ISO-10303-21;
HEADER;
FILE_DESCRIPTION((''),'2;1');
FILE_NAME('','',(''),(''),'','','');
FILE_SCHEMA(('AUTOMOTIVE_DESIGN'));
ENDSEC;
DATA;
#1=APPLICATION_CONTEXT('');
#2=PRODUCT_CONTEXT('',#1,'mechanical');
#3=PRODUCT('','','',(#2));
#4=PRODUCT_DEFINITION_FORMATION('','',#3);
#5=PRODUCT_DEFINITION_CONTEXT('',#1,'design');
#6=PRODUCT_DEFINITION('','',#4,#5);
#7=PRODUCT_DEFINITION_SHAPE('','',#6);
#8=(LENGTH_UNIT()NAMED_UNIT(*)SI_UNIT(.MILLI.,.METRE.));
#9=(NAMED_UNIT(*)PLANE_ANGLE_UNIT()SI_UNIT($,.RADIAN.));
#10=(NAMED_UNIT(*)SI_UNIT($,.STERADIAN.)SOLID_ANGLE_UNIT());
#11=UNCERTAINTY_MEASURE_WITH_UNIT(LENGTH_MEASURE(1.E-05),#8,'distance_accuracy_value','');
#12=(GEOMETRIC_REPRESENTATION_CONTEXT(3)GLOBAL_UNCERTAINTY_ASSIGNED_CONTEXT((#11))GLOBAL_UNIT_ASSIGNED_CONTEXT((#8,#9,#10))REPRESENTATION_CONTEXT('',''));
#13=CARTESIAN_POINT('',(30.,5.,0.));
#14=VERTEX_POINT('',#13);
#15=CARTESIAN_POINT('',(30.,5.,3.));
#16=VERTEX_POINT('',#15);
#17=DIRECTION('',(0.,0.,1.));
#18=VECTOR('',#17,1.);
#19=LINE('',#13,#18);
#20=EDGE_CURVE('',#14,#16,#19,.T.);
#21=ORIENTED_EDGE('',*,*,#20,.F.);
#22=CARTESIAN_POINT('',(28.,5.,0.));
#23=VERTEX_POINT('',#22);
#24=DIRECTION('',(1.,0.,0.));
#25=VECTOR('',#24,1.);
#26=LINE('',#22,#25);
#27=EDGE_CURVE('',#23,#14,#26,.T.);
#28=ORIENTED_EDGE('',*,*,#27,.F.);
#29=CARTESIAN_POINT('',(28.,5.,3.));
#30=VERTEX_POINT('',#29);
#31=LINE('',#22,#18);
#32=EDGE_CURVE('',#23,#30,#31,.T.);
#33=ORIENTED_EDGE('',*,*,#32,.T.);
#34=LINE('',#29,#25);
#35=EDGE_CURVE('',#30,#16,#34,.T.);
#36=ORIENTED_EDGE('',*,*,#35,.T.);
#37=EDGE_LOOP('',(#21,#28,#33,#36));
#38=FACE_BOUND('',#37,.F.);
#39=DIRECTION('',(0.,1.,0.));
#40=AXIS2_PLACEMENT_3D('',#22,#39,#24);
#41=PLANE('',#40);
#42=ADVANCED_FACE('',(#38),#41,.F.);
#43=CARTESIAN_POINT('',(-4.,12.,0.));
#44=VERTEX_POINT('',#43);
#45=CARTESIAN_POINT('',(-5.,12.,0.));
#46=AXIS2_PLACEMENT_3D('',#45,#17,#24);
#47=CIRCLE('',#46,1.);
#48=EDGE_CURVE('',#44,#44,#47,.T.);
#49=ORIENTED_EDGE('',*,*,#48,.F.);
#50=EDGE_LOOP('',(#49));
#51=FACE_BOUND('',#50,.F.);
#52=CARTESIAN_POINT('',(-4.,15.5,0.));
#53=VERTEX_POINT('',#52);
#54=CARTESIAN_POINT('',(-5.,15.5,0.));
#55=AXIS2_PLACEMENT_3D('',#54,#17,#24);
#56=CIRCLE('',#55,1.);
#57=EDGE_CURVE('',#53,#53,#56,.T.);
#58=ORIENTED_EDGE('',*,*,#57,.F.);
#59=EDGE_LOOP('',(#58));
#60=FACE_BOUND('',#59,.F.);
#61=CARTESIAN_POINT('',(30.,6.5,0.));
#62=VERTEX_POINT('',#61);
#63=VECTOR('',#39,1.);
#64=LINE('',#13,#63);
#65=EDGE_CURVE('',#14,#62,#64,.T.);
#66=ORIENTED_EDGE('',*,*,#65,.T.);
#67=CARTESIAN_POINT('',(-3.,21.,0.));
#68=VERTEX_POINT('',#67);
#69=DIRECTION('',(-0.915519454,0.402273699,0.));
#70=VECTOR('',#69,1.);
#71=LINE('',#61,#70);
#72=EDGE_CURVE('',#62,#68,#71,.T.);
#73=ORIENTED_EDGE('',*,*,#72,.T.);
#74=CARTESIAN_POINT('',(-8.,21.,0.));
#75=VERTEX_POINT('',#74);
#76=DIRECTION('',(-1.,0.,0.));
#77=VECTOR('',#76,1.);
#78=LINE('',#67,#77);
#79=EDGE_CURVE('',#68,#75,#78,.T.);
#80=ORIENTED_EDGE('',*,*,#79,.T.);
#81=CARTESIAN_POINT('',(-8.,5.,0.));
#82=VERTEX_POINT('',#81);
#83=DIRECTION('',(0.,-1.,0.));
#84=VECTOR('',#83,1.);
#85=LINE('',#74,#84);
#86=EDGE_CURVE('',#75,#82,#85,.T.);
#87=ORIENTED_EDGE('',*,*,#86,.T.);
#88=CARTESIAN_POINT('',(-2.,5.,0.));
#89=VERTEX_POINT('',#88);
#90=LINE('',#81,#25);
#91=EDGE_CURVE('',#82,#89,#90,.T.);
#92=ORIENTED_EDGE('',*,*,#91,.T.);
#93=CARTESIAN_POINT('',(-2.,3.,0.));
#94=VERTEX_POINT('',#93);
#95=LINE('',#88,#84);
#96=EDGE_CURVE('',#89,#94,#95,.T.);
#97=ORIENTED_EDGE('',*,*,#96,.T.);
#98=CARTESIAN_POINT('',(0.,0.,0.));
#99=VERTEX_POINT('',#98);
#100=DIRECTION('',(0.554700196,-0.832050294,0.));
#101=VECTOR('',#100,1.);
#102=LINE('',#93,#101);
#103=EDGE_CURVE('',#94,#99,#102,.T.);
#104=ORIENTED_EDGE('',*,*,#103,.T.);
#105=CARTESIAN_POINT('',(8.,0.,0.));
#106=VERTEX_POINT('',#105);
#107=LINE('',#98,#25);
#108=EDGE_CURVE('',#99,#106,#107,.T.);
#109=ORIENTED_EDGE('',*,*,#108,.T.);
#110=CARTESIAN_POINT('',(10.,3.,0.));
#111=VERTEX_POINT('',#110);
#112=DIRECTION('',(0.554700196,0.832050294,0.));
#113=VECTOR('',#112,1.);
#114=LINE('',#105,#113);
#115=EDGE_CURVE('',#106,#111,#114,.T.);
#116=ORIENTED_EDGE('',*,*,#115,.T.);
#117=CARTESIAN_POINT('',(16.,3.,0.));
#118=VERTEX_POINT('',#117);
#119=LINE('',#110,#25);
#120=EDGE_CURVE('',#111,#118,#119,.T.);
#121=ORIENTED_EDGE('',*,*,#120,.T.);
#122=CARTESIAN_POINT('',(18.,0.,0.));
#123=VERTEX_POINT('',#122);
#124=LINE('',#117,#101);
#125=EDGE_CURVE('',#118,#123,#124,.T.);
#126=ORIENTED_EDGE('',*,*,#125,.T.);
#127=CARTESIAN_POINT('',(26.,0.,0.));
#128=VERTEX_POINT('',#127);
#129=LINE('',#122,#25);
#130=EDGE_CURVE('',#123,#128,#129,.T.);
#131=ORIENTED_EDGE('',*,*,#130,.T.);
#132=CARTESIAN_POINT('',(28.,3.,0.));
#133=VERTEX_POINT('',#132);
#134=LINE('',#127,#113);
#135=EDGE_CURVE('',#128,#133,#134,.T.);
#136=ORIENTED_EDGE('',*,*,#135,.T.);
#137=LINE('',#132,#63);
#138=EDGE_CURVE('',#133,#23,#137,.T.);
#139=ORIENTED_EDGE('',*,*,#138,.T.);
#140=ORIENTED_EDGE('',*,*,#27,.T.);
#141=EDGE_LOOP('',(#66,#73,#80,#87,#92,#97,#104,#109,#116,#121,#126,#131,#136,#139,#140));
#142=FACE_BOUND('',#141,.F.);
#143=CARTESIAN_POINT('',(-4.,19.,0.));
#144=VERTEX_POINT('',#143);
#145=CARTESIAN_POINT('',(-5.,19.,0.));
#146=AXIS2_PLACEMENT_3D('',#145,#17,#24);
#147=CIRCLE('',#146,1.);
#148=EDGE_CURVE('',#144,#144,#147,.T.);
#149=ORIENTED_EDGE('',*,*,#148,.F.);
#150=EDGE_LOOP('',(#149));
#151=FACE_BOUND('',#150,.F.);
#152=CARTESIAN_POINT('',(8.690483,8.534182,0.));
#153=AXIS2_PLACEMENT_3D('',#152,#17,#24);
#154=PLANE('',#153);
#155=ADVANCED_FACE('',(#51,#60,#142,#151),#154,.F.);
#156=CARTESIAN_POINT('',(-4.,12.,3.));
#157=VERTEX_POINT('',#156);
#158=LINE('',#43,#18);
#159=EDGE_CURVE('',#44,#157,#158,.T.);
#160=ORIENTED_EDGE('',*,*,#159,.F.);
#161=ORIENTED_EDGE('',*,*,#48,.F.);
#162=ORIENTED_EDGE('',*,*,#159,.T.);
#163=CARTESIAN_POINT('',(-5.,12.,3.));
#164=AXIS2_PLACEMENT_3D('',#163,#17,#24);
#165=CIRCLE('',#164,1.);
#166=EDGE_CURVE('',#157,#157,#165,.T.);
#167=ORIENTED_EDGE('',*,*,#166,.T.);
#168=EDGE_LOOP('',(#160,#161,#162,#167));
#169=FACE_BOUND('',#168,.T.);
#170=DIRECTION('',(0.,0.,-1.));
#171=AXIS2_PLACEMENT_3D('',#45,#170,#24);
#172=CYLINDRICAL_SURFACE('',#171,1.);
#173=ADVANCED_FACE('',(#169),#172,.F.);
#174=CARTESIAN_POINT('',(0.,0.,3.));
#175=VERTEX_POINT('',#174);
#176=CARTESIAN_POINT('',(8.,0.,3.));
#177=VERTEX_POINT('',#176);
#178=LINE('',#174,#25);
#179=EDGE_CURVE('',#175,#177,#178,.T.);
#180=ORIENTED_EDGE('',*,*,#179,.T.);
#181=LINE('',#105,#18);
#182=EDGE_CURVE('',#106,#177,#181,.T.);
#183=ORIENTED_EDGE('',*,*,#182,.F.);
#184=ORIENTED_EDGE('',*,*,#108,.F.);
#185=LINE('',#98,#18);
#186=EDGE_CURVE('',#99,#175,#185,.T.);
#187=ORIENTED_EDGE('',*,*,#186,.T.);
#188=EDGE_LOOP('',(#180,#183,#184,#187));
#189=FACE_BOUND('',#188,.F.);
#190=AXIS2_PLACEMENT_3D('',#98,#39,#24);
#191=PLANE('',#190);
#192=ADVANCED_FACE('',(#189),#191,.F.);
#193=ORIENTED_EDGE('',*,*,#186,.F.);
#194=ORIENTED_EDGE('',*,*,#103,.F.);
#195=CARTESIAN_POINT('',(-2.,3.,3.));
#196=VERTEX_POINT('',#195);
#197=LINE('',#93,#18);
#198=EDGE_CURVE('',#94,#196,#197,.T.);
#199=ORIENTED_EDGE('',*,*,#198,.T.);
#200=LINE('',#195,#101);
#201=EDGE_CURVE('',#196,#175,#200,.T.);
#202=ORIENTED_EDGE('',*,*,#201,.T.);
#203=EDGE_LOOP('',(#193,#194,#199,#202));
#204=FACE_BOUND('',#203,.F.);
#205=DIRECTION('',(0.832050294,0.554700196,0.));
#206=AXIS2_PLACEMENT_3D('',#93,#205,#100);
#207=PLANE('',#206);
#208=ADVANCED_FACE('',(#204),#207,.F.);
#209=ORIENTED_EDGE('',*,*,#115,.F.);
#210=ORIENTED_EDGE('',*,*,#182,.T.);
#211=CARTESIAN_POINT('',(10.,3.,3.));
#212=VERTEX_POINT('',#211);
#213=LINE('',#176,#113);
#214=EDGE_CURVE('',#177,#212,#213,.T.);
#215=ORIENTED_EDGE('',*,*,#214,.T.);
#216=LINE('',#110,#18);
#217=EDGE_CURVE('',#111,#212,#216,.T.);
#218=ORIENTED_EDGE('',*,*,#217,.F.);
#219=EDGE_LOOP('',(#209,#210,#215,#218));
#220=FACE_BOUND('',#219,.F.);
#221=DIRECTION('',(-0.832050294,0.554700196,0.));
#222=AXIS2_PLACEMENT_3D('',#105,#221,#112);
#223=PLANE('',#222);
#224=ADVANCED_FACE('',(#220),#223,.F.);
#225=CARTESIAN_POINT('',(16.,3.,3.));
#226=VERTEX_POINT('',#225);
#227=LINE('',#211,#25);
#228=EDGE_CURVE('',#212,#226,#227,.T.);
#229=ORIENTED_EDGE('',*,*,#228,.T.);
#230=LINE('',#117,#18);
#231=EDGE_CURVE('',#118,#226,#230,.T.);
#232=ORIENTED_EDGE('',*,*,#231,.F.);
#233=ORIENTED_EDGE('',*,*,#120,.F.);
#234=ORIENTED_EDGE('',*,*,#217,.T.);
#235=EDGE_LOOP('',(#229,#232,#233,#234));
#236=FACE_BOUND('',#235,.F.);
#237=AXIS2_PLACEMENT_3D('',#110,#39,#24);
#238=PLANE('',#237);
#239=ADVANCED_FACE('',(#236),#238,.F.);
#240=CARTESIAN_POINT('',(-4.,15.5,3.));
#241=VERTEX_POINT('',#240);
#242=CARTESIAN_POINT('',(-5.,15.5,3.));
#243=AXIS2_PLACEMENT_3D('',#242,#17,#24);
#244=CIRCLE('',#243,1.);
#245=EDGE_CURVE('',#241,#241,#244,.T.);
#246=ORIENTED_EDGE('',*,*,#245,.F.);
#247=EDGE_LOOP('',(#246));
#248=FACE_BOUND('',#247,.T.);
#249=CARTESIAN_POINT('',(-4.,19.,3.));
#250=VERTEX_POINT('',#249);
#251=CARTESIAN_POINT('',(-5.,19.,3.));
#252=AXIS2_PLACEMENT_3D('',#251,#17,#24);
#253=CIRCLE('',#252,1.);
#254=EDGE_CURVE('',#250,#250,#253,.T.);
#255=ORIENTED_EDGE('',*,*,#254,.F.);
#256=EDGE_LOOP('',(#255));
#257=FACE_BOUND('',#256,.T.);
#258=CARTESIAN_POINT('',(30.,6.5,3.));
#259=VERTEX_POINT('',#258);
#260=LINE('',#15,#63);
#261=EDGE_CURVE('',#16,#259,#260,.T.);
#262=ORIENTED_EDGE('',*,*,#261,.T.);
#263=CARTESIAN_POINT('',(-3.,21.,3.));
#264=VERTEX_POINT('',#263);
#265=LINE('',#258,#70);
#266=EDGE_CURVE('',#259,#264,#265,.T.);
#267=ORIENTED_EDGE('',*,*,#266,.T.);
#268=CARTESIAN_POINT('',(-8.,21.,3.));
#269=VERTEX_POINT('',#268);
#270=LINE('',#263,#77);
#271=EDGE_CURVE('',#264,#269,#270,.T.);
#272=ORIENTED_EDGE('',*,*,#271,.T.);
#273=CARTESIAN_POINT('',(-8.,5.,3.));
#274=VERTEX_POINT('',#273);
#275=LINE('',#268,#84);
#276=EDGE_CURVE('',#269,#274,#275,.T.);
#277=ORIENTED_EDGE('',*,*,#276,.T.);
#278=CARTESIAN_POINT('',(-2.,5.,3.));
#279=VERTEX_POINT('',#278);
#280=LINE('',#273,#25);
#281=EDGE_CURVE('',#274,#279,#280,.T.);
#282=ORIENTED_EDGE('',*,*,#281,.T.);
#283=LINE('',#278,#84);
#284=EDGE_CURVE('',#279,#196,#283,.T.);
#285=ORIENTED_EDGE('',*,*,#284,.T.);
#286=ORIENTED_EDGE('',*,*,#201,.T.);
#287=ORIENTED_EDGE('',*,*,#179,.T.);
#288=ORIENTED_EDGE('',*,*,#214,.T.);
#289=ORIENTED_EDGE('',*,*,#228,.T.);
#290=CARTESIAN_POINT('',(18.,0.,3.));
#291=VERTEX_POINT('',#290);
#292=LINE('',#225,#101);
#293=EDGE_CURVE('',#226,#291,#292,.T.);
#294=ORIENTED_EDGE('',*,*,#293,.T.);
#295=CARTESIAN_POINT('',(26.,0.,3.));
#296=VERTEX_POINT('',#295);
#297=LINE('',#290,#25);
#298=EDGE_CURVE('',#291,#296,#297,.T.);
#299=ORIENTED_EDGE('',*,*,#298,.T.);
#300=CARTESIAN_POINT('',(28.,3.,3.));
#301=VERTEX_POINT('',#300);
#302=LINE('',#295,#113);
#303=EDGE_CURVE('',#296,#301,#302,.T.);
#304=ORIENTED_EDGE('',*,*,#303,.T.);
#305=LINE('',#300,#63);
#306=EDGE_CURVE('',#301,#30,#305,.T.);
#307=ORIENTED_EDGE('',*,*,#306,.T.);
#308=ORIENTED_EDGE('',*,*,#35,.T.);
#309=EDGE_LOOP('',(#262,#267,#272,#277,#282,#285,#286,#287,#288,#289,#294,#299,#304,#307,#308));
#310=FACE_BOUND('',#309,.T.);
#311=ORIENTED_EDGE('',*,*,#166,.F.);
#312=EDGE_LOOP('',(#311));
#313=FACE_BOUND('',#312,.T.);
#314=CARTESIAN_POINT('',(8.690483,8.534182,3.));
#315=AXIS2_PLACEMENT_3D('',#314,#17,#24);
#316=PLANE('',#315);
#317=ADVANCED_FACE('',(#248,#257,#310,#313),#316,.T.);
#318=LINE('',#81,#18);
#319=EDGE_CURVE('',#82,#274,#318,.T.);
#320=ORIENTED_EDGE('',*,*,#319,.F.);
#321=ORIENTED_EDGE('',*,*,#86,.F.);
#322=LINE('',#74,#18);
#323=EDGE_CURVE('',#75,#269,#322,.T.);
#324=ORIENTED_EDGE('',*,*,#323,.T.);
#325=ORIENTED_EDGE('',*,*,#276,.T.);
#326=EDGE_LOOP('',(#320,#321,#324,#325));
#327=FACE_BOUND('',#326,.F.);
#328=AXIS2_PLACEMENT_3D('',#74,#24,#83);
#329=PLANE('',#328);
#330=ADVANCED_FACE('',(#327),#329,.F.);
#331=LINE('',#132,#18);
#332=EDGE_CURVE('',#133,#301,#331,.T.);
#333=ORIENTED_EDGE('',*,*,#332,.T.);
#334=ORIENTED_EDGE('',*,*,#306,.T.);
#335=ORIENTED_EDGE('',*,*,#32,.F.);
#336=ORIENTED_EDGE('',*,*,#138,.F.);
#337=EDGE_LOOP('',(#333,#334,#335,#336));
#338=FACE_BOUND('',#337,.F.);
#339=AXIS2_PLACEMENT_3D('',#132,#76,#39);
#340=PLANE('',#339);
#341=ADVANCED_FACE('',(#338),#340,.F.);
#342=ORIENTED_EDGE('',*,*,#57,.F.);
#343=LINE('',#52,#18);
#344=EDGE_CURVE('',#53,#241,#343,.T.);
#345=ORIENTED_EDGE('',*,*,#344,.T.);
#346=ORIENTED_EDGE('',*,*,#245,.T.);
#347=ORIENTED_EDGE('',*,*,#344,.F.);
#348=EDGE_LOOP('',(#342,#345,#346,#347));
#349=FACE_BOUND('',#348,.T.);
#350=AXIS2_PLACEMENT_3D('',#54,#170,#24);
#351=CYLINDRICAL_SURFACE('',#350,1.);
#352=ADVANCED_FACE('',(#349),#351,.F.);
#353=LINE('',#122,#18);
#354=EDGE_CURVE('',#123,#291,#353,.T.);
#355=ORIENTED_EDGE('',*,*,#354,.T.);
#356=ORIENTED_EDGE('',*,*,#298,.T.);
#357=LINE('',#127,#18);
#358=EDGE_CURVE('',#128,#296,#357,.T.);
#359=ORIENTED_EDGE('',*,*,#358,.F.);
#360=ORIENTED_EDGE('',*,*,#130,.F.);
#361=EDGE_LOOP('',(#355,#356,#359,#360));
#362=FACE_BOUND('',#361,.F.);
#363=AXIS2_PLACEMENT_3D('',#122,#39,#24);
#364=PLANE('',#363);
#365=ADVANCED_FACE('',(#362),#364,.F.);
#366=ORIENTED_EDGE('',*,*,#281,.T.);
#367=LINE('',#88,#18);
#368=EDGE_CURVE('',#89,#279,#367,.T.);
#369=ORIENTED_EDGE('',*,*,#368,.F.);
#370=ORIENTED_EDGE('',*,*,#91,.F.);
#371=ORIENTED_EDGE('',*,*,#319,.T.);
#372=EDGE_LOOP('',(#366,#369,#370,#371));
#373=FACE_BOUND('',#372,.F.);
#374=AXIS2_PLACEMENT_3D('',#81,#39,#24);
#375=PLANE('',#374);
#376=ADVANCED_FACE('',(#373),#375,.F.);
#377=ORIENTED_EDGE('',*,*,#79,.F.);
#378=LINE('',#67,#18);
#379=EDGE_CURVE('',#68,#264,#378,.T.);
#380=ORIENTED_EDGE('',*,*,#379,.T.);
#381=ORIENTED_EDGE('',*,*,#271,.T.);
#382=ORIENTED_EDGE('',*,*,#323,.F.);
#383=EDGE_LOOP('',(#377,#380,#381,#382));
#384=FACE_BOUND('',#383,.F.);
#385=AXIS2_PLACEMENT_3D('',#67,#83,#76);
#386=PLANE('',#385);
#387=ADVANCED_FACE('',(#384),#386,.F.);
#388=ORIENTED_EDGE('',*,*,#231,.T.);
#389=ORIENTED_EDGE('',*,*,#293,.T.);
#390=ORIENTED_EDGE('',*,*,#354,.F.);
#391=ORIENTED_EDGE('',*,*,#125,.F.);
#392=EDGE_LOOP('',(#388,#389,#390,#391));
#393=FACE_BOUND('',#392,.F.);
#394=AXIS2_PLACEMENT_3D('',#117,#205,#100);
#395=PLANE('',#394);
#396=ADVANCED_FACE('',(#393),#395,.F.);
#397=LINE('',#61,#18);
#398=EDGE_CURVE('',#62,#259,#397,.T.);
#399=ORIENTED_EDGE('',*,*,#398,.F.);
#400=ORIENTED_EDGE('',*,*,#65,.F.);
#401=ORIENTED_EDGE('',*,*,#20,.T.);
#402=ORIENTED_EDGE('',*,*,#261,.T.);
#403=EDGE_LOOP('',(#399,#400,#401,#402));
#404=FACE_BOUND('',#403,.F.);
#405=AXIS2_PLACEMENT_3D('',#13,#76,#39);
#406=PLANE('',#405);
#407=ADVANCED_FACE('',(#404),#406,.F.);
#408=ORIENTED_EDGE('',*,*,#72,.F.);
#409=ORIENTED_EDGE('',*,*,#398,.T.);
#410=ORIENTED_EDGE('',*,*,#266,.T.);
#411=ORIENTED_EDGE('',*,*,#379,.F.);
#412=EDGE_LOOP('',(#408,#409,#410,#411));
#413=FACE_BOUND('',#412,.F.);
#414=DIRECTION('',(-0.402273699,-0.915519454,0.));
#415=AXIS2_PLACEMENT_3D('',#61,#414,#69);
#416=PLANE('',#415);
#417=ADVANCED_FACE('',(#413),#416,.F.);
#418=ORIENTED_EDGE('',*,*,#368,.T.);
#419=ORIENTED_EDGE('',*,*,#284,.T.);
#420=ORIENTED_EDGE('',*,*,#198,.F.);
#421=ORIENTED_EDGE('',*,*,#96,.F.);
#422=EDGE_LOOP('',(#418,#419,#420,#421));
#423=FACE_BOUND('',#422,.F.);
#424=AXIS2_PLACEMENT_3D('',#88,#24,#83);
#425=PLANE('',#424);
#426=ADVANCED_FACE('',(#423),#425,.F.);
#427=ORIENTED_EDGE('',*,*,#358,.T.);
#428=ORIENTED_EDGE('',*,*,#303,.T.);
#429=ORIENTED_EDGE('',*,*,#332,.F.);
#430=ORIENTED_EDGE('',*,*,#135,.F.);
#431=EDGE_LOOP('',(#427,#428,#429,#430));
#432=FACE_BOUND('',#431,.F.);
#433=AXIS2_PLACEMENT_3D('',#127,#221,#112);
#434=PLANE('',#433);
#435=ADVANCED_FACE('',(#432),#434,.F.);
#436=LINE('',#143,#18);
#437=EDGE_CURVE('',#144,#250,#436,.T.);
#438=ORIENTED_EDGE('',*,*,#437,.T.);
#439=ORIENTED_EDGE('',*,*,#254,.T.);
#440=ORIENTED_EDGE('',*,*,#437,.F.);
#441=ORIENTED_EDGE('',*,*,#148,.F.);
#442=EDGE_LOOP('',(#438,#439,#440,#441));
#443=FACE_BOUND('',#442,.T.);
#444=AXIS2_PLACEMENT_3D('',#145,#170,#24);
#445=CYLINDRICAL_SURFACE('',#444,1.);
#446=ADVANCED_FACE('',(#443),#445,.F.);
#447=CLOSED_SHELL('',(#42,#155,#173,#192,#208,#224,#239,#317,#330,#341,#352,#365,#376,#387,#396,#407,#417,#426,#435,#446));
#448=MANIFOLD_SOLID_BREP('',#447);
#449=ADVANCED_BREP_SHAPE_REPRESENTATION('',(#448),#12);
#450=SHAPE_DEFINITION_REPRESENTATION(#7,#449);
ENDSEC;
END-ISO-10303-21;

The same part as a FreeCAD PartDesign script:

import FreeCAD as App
import Part
import Sketcher

doc = App.newDocument("Part")
params = doc.addObject("Spreadsheet::Sheet", "Params")
for row, (alias, value) in enumerate([
    ("sketch1_diameter", "2 mm"),
    ("sketch1_width", "8 mm"),
    ("sketch1_width2", "6 mm"),
    ("sketch1_width3", "2 mm"),
    ("sketch1_width4", "5 mm"),
    ("pad1_length", "3 mm"),
], start=1):
    params.set(f"A{row}", alias)
    params.set(f"B{row}", "=" + value)
    params.setAlias(f"B{row}", alias)

body = doc.addObject("PartDesign::Body", "Body")

# Sketch on XY plane
sketch1 = body.newObject("Sketcher::SketchObject", "Sketch")
sketch1.AttachmentSupport = (doc.getObject("XY_Plane"), [""])
sketch1.MapMode = "FlatFace"
sketch1.addGeometry([
    Part.LineSegment(App.Vector(0, 0, 0), App.Vector(8, 0, 0)),  # 0
    Part.LineSegment(App.Vector(8, 0, 0), App.Vector(10, 3, 0)),  # 1
    Part.LineSegment(App.Vector(10, 3, 0), App.Vector(16, 3, 0)),  # 2
    Part.LineSegment(App.Vector(16, 3, 0), App.Vector(18, 0, 0)),  # 3
    Part.LineSegment(App.Vector(18, 0, 0), App.Vector(26, 0, 0)),  # 4
    Part.LineSegment(App.Vector(26, 0, 0), App.Vector(28, 3, 0)),  # 5
    Part.LineSegment(App.Vector(28, 3, 0), App.Vector(28, 5, 0)),  # 6
    Part.LineSegment(App.Vector(28, 5, 0), App.Vector(30, 5, 0)),  # 7
    Part.LineSegment(App.Vector(30, 5, 0), App.Vector(30, 6.5, 0)),  # 8
    Part.LineSegment(App.Vector(30, 6.5, 0), App.Vector(-3, 21, 0)),  # 9
    Part.LineSegment(App.Vector(-3, 21, 0), App.Vector(-8, 21, 0)),  # 10
    Part.LineSegment(App.Vector(-8, 21, 0), App.Vector(-8, 5, 0)),  # 11
    Part.LineSegment(App.Vector(-8, 5, 0), App.Vector(-2, 5, 0)),  # 12
    Part.LineSegment(App.Vector(-2, 5, 0), App.Vector(-2, 3, 0)),  # 13
    Part.LineSegment(App.Vector(-2, 3, 0), App.Vector(0, 0, 0)),  # 14
    Part.Circle(App.Vector(-5, 12, 0), App.Vector(0, 0, 1), 1),  # 15
    Part.Circle(App.Vector(-5, 15.5, 0), App.Vector(0, 0, 1), 1),  # 16
    Part.Circle(App.Vector(-5, 19, 0), App.Vector(0, 0, 1), 1),  # 17
], False)
sketch1.addConstraint([
    Sketcher.Constraint("Coincident", 0, 2, 1, 1),
    Sketcher.Constraint("Coincident", 1, 2, 2, 1),
    Sketcher.Constraint("Coincident", 2, 2, 3, 1),
    Sketcher.Constraint("Coincident", 3, 2, 4, 1),
    Sketcher.Constraint("Coincident", 4, 2, 5, 1),
    Sketcher.Constraint("Coincident", 5, 2, 6, 1),
    Sketcher.Constraint("Coincident", 6, 2, 7, 1),
    Sketcher.Constraint("Coincident", 7, 2, 8, 1),
    Sketcher.Constraint("Coincident", 8, 2, 9, 1),
    Sketcher.Constraint("Coincident", 9, 2, 10, 1),
    Sketcher.Constraint("Coincident", 10, 2, 11, 1),
    Sketcher.Constraint("Coincident", 11, 2, 12, 1),
    Sketcher.Constraint("Coincident", 12, 2, 13, 1),
    Sketcher.Constraint("Coincident", 13, 2, 14, 1),
    Sketcher.Constraint("Coincident", 14, 2, 0, 1),
    Sketcher.Constraint("Horizontal", 0),
    Sketcher.Constraint("Horizontal", 2),
    Sketcher.Constraint("Horizontal", 4),
    Sketcher.Constraint("Vertical", 6),
    Sketcher.Constraint("Horizontal", 7),
    Sketcher.Constraint("Vertical", 8),
    Sketcher.Constraint("Horizontal", 10),
    Sketcher.Constraint("Vertical", 11),
    Sketcher.Constraint("Horizontal", 12),
    Sketcher.Constraint("Vertical", 13),
    Sketcher.Constraint("Coincident", 14, 2, -1, 1),
    Sketcher.Constraint("Equal", 15, 16),
    Sketcher.Constraint("Equal", 16, 17),
    Sketcher.Constraint("PointOnObject", 3, 2, -1),
    Sketcher.Constraint("Parallel", 1, 5),
    Sketcher.Constraint("Parallel", 3, 14),
    Sketcher.Constraint("Horizontal", 2, 2, 5, 2),
    Sketcher.Constraint("Horizontal", 7, 2, 11, 2),
    Sketcher.Constraint("Horizontal", 5, 2, 13, 2),
    Sketcher.Constraint("Vertical", 15, 3, 16, 3),
    Sketcher.Constraint("Vertical", 16, 3, 17, 3),
    Sketcher.Constraint("Equal", 0, 4),
    Sketcher.Constraint("Equal", 2, 12),
    Sketcher.Constraint("Equal", 7, 6),
    Sketcher.Constraint("Equal", 1, 3),
    Sketcher.Constraint("Diameter", 15, 2.0),
    Sketcher.Constraint("DistanceX", 0, 1, 0, 2, 8.0),
    Sketcher.Constraint("DistanceX", 2, 1, 2, 2, 6.0),
    Sketcher.Constraint("DistanceX", 7, 1, 7, 2, 2.0),
    Sketcher.Constraint("DistanceX", 10, 2, 10, 1, 5.0),
    Sketcher.Constraint("DistanceY", 11, 2, 11, 1, 16.0),
    Sketcher.Constraint("DistanceY", 8, 1, 8, 2, 1.5),
    Sketcher.Constraint("DistanceX", 15, 3, -1, 1, 5.0),
    Sketcher.Constraint("DistanceY", -1, 1, 15, 3, 12.0),
    Sketcher.Constraint("DistanceY", -1, 1, 17, 3, 19.0),
    Sketcher.Constraint("DistanceX", -1, 1, 1, 2, 10.0),
    Sketcher.Constraint("DistanceY", -1, 1, 1, 2, 3.0),
    Sketcher.Constraint("DistanceY", -1, 1, 16, 3, 15.5),
])
sketch1.setExpression("Constraints[40]", "Params.sketch1_diameter")
sketch1.setExpression("Constraints[41]", "Params.sketch1_width")
sketch1.setExpression("Constraints[42]", "Params.sketch1_width2")
sketch1.setExpression("Constraints[43]", "Params.sketch1_width3")
sketch1.setExpression("Constraints[44]", "Params.sketch1_width4")
pad1 = body.newObject("PartDesign::Pad", "Pad")
pad1.Profile = sketch1
pad1.setExpression("Length", "Params.pad1_length")

doc.recompute()
